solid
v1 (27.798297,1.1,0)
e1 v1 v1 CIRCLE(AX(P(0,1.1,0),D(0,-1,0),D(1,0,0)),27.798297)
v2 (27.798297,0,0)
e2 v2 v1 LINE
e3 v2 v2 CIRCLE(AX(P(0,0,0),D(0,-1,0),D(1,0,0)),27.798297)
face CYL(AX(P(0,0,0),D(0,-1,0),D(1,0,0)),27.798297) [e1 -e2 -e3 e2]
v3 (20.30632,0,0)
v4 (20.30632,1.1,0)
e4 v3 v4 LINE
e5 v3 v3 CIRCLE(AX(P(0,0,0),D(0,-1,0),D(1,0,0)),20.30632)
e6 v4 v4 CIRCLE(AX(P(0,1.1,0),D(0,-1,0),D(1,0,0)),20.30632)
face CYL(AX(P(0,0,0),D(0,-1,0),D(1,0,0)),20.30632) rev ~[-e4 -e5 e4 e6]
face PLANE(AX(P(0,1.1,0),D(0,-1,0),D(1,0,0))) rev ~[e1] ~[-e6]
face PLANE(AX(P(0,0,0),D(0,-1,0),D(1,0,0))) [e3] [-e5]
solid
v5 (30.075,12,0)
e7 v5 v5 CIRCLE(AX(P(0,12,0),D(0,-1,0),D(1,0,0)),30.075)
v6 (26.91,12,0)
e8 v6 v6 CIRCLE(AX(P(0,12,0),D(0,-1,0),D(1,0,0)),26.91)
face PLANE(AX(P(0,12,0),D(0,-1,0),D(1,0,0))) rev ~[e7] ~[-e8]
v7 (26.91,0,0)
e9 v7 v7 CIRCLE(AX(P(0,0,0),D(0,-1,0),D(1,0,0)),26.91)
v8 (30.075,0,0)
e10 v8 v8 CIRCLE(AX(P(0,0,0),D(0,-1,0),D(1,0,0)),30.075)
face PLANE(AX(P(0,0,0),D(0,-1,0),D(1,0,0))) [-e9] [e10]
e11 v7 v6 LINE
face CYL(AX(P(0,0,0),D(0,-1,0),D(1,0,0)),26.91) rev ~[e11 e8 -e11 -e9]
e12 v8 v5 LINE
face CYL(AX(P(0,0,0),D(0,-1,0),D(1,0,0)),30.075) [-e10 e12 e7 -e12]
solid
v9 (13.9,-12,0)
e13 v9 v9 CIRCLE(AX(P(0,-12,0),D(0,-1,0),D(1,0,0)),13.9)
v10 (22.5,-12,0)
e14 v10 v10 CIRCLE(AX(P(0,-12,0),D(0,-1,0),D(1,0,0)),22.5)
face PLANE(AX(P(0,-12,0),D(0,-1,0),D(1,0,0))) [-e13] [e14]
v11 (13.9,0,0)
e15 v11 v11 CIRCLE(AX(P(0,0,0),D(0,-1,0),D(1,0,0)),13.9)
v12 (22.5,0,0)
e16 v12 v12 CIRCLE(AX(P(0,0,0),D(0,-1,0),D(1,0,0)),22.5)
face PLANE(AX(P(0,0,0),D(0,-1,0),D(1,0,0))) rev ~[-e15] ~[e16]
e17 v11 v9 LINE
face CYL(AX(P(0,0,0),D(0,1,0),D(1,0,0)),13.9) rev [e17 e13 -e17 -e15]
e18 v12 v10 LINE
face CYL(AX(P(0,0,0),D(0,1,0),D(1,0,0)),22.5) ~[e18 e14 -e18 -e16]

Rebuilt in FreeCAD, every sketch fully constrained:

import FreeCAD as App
import Part
import Sketcher

doc = App.newDocument("Part")
body = doc.addObject("PartDesign::Body", "Body")

sketch1 = body.newObject("Sketcher::SketchObject", "Sketch")
sketch1.AttachmentSupport = (doc.getObject("XZ_Plane"), [""])
sketch1.MapMode = "FlatFace"
sketch1.addGeometry(Part.Circle(App.Vector(0, 0, 0), App.Vector(0, 0, 1), 22), False)
sketch1.addGeometry(Part.Circle(App.Vector(0, 0, 0), App.Vector(0, 0, 1), 14), False)
sketch1.addConstraint(Sketcher.Constraint("Coincident", 0, 3, -1, 1))
sketch1.addConstraint(Sketcher.Constraint("Coincident", 1, 3, -1, 1))
sketch1.addConstraint(Sketcher.Constraint("Diameter", 0, 45.0))
sketch1.addConstraint(Sketcher.Constraint("Diameter", 1, 27.8))
pad1 = body.newObject("PartDesign::Pad", "Pad")
pad1.Profile = sketch1
pad1.Length = 12
body2 = doc.addObject("PartDesign::Body", "Body001")

sketch2 = body2.newObject("Sketcher::SketchObject", "Sketch001")
sketch2.AttachmentSupport = (doc.getObject("XZ_Plane001"), [""])
sketch2.MapMode = "FlatFace"
sketch2.addGeometry(Part.Circle(App.Vector(0, 0, 0), App.Vector(0, 0, 1), 30), False)
sketch2.addGeometry(Part.Circle(App.Vector(0, 0, 0), App.Vector(0, 0, 1), 27), False)
sketch2.addConstraint(Sketcher.Constraint("Coincident", 0, 3, -1, 1))
sketch2.addConstraint(Sketcher.Constraint("Coincident", 1, 3, -1, 1))
sketch2.addConstraint(Sketcher.Constraint("Diameter", 0, 60.15))
sketch2.addConstraint(Sketcher.Constraint("Diameter", 1, 53.82))
pad2 = body2.newObject("PartDesign::Pad", "Pad001")
pad2.Profile = sketch2
pad2.Length = 12
pad2.Reversed = True
body3 = doc.addObject("PartDesign::Body", "Body002")

sketch3 = body3.newObject("Sketcher::SketchObject", "Sketch002")
sketch3.AttachmentSupport = (doc.getObject("XZ_Plane002"), [""])
sketch3.MapMode = "FlatFace"
sketch3.addGeometry(Part.Circle(App.Vector(0, 0, 0), App.Vector(0, 0, 1), 28), False)
sketch3.addGeometry(Part.Circle(App.Vector(0, 0, 0), App.Vector(0, 0, 1), 20), False)
sketch3.addConstraint(Sketcher.Constraint("Coincident", 0, 3, -1, 1))
sketch3.addConstraint(Sketcher.Constraint("Coincident", 1, 3, -1, 1))
sketch3.addConstraint(Sketcher.Constraint("Diameter", 1, 40.61264))
sketch3.addConstraint(Sketcher.Constraint("Diameter", 0, 55.596594))
pad3 = body3.newObject("PartDesign::Pad", "Pad002")
pad3.Profile = sketch3
pad3.Length = 1.1
pad3.Reversed = True

doc.recompute()
